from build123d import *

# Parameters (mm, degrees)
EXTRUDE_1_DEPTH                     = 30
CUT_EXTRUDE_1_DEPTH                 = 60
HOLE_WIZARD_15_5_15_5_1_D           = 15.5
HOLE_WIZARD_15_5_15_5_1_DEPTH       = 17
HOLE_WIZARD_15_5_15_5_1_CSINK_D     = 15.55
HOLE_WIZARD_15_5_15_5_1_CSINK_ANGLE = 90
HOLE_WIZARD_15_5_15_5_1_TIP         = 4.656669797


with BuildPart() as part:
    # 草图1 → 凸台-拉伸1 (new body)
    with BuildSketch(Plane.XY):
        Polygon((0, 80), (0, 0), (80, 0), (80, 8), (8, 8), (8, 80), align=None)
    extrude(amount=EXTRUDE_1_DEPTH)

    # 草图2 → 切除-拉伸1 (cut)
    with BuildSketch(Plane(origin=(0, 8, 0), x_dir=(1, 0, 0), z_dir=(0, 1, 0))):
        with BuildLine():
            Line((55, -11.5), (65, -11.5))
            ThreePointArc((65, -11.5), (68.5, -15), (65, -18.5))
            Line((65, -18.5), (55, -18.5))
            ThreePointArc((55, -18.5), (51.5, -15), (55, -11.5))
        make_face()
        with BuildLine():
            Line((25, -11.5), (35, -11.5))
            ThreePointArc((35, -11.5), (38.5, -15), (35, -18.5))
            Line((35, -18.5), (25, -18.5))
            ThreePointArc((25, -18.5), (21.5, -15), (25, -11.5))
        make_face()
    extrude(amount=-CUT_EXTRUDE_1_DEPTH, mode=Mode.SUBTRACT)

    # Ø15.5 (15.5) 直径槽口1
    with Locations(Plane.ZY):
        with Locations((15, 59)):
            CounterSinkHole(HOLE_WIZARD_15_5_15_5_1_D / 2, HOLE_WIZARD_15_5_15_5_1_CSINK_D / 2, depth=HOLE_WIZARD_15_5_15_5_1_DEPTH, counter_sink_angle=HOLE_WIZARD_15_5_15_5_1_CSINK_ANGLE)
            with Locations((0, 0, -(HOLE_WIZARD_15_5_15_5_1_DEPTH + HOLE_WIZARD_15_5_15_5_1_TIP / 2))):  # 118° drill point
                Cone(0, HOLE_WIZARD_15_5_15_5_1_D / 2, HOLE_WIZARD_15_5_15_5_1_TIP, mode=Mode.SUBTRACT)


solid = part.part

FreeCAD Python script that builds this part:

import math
import FreeCAD as App
import Part
import Sketcher


def add_polygon(sketch, points):
    """Adds a closed chain of lines whose ends are joined by coincident constraints."""
    first, n = sketch.GeometryCount, len(points)
    for a, b in zip(points, points[1:] + points[:1]):
        sketch.addGeometry(Part.LineSegment(App.Vector(*a, 0), App.Vector(*b, 0)), False)
    for i in range(n):
        sketch.addConstraint(Sketcher.Constraint("Coincident", first + i, 2, first + (i + 1) % n, 1))

doc = App.newDocument("Part")
body = doc.addObject("PartDesign::Body", "Body")

sketch1 = body.newObject("Sketcher::SketchObject", "Sketch")
sketch1.AttachmentSupport = (doc.getObject("XY_Plane"), [""])
sketch1.MapMode = "FlatFace"
add_polygon(sketch1, [(0, 80), (0, 0), (80, 0), (80, 8), (8, 8), (8, 80)])
sketch1.addConstraint(Sketcher.Constraint("Vertical", 0))
sketch1.addConstraint(Sketcher.Constraint("Horizontal", 1))
sketch1.addConstraint(Sketcher.Constraint("Vertical", 2))
sketch1.addConstraint(Sketcher.Constraint("Horizontal", 3))
sketch1.addConstraint(Sketcher.Constraint("Vertical", 4))
sketch1.addConstraint(Sketcher.Constraint("Horizontal", 5))
sketch1.addConstraint(Sketcher.Constraint("Coincident", 0, 2, -1, 1))
sketch1.addConstraint(Sketcher.Constraint("Equal", 1, 0))
sketch1.addConstraint(Sketcher.Constraint("Equal", 5, 2))
sketch1.addConstraint(Sketcher.Constraint("DistanceX", 1, 1, 1, 2, 80.0))
sketch1.addConstraint(Sketcher.Constraint("DistanceX", 3, 2, 3, 1, 72.0))
pad1 = body.newObject("PartDesign::Pad", "Pad")
pad1.Profile = sketch1
pad1.Length = 30

sketch2 = body.newObject("Sketcher::SketchObject", "Sketch001")
sketch2.AttachmentSupport = (doc.getObject("XZ_Plane"), [""])
sketch2.MapMode = "FlatFace"
sketch2.AttachmentOffset = App.Placement(App.Vector(0, 0, -8), App.Rotation())
sketch2.addGeometry(Part.LineSegment(App.Vector(65, 11.5, 0), App.Vector(55, 11.5, 0)), False)
sketch2.addGeometry(Part.ArcOfCircle(Part.Circle(App.Vector(55, 15, 0), App.Vector(0, 0, 1), 3.5), math.radians(90), math.radians(270)), False)
sketch2.addGeometry(Part.LineSegment(App.Vector(55, 18.5, 0), App.Vector(65, 18.5, 0)), False)
sketch2.addGeometry(Part.ArcOfCircle(Part.Circle(App.Vector(65, 15, 0), App.Vector(0, 0, 1), 3.5), math.radians(-90), math.radians(90)), False)
sketch2.addGeometry(Part.LineSegment(App.Vector(35, 11.5, 0), App.Vector(25, 11.5, 0)), False)
sketch2.addGeometry(Part.ArcOfCircle(Part.Circle(App.Vector(25, 15, 0), App.Vector(0, 0, 1), 3.5), math.radians(90), math.radians(270)), False)
sketch2.addGeometry(Part.LineSegment(App.Vector(25, 18.5, 0), App.Vector(35, 18.5, 0)), False)
sketch2.addGeometry(Part.ArcOfCircle(Part.Circle(App.Vector(35, 15, 0), App.Vector(0, 0, 1), 3.5), math.radians(-90), math.radians(90)), False)
sketch2.addConstraint(Sketcher.Constraint("Tangent", 0, 2, 1, 2))
sketch2.addConstraint(Sketcher.Constraint("Tangent", 1, 1, 2, 1))
sketch2.addConstraint(Sketcher.Constraint("Tangent", 2, 2, 3, 2))
sketch2.addConstraint(Sketcher.Constraint("Tangent", 3, 1, 0, 1))
sketch2.addConstraint(Sketcher.Constraint("Tangent", 4, 2, 5, 2))
sketch2.addConstraint(Sketcher.Constraint("Tangent", 5, 1, 6, 1))
sketch2.addConstraint(Sketcher.Constraint("Tangent", 6, 2, 7, 2))
sketch2.addConstraint(Sketcher.Constraint("Tangent", 7, 1, 4, 1))
sketch2.addConstraint(Sketcher.Constraint("Horizontal", 0))
sketch2.addConstraint(Sketcher.Constraint("Horizontal", 2))
sketch2.addConstraint(Sketcher.Constraint("Horizontal", 4))
sketch2.addConstraint(Sketcher.Constraint("Horizontal", 6))
sketch2.addConstraint(Sketcher.Constraint("Equal", 3, 5))
sketch2.addConstraint(Sketcher.Constraint("Horizontal", 3, 3, 5, 3))
sketch2.addConstraint(Sketcher.Constraint("Equal", 2, 4))
sketch2.addConstraint(Sketcher.Constraint("Radius", 1, 3.5))
sketch2.addConstraint(Sketcher.Constraint("DistanceX", 0, 2, 0, 1, 10.0))
sketch2.addConstraint(Sketcher.Constraint("DistanceX", -1, 1, 1, 3, 55.0))
sketch2.addConstraint(Sketcher.Constraint("DistanceY", -1, 1, 1, 3, 15.0))
sketch2.addConstraint(Sketcher.Constraint("DistanceX", -1, 1, 5, 3, 25.0))
pocket1 = body.newObject("PartDesign::Pocket", "Pocket")
pocket1.Profile = sketch2
pocket1.Length = 60
pocket1.Reversed = True

sketch3 = body.newObject("Sketcher::SketchObject", "Sketch002")
sketch3.AttachmentSupport = (doc.getObject("YZ_Plane"), [""])
sketch3.MapMode = "FlatFace"
sketch3.addGeometry(Part.Circle(App.Vector(59, 15, 0), App.Vector(0, 0, 1), 7.75), False)
sketch3.addConstraint(Sketcher.Constraint("Diameter", 0, 15.5))
sketch3.addConstraint(Sketcher.Constraint("DistanceX", -1, 1, 0, 3, 59.0))
sketch3.addConstraint(Sketcher.Constraint("DistanceY", -1, 1, 0, 3, 15.0))
doc.recompute()
hole = body.newObject("PartDesign::Hole", "Hole")
hole.Profile = sketch3
hole.ThreadType = "None"
hole.Diameter = 15.5
hole.DepthType = "Dimension"
hole.Depth = 17
hole.DrillPoint = "Angled"
hole.DrillPointAngle = 118
hole.HoleCutType = "Countersink"
hole.HoleCutDiameter = 15.55
hole.HoleCutCountersinkAngle = 90
hole.Reversed = True

doc.recompute()
